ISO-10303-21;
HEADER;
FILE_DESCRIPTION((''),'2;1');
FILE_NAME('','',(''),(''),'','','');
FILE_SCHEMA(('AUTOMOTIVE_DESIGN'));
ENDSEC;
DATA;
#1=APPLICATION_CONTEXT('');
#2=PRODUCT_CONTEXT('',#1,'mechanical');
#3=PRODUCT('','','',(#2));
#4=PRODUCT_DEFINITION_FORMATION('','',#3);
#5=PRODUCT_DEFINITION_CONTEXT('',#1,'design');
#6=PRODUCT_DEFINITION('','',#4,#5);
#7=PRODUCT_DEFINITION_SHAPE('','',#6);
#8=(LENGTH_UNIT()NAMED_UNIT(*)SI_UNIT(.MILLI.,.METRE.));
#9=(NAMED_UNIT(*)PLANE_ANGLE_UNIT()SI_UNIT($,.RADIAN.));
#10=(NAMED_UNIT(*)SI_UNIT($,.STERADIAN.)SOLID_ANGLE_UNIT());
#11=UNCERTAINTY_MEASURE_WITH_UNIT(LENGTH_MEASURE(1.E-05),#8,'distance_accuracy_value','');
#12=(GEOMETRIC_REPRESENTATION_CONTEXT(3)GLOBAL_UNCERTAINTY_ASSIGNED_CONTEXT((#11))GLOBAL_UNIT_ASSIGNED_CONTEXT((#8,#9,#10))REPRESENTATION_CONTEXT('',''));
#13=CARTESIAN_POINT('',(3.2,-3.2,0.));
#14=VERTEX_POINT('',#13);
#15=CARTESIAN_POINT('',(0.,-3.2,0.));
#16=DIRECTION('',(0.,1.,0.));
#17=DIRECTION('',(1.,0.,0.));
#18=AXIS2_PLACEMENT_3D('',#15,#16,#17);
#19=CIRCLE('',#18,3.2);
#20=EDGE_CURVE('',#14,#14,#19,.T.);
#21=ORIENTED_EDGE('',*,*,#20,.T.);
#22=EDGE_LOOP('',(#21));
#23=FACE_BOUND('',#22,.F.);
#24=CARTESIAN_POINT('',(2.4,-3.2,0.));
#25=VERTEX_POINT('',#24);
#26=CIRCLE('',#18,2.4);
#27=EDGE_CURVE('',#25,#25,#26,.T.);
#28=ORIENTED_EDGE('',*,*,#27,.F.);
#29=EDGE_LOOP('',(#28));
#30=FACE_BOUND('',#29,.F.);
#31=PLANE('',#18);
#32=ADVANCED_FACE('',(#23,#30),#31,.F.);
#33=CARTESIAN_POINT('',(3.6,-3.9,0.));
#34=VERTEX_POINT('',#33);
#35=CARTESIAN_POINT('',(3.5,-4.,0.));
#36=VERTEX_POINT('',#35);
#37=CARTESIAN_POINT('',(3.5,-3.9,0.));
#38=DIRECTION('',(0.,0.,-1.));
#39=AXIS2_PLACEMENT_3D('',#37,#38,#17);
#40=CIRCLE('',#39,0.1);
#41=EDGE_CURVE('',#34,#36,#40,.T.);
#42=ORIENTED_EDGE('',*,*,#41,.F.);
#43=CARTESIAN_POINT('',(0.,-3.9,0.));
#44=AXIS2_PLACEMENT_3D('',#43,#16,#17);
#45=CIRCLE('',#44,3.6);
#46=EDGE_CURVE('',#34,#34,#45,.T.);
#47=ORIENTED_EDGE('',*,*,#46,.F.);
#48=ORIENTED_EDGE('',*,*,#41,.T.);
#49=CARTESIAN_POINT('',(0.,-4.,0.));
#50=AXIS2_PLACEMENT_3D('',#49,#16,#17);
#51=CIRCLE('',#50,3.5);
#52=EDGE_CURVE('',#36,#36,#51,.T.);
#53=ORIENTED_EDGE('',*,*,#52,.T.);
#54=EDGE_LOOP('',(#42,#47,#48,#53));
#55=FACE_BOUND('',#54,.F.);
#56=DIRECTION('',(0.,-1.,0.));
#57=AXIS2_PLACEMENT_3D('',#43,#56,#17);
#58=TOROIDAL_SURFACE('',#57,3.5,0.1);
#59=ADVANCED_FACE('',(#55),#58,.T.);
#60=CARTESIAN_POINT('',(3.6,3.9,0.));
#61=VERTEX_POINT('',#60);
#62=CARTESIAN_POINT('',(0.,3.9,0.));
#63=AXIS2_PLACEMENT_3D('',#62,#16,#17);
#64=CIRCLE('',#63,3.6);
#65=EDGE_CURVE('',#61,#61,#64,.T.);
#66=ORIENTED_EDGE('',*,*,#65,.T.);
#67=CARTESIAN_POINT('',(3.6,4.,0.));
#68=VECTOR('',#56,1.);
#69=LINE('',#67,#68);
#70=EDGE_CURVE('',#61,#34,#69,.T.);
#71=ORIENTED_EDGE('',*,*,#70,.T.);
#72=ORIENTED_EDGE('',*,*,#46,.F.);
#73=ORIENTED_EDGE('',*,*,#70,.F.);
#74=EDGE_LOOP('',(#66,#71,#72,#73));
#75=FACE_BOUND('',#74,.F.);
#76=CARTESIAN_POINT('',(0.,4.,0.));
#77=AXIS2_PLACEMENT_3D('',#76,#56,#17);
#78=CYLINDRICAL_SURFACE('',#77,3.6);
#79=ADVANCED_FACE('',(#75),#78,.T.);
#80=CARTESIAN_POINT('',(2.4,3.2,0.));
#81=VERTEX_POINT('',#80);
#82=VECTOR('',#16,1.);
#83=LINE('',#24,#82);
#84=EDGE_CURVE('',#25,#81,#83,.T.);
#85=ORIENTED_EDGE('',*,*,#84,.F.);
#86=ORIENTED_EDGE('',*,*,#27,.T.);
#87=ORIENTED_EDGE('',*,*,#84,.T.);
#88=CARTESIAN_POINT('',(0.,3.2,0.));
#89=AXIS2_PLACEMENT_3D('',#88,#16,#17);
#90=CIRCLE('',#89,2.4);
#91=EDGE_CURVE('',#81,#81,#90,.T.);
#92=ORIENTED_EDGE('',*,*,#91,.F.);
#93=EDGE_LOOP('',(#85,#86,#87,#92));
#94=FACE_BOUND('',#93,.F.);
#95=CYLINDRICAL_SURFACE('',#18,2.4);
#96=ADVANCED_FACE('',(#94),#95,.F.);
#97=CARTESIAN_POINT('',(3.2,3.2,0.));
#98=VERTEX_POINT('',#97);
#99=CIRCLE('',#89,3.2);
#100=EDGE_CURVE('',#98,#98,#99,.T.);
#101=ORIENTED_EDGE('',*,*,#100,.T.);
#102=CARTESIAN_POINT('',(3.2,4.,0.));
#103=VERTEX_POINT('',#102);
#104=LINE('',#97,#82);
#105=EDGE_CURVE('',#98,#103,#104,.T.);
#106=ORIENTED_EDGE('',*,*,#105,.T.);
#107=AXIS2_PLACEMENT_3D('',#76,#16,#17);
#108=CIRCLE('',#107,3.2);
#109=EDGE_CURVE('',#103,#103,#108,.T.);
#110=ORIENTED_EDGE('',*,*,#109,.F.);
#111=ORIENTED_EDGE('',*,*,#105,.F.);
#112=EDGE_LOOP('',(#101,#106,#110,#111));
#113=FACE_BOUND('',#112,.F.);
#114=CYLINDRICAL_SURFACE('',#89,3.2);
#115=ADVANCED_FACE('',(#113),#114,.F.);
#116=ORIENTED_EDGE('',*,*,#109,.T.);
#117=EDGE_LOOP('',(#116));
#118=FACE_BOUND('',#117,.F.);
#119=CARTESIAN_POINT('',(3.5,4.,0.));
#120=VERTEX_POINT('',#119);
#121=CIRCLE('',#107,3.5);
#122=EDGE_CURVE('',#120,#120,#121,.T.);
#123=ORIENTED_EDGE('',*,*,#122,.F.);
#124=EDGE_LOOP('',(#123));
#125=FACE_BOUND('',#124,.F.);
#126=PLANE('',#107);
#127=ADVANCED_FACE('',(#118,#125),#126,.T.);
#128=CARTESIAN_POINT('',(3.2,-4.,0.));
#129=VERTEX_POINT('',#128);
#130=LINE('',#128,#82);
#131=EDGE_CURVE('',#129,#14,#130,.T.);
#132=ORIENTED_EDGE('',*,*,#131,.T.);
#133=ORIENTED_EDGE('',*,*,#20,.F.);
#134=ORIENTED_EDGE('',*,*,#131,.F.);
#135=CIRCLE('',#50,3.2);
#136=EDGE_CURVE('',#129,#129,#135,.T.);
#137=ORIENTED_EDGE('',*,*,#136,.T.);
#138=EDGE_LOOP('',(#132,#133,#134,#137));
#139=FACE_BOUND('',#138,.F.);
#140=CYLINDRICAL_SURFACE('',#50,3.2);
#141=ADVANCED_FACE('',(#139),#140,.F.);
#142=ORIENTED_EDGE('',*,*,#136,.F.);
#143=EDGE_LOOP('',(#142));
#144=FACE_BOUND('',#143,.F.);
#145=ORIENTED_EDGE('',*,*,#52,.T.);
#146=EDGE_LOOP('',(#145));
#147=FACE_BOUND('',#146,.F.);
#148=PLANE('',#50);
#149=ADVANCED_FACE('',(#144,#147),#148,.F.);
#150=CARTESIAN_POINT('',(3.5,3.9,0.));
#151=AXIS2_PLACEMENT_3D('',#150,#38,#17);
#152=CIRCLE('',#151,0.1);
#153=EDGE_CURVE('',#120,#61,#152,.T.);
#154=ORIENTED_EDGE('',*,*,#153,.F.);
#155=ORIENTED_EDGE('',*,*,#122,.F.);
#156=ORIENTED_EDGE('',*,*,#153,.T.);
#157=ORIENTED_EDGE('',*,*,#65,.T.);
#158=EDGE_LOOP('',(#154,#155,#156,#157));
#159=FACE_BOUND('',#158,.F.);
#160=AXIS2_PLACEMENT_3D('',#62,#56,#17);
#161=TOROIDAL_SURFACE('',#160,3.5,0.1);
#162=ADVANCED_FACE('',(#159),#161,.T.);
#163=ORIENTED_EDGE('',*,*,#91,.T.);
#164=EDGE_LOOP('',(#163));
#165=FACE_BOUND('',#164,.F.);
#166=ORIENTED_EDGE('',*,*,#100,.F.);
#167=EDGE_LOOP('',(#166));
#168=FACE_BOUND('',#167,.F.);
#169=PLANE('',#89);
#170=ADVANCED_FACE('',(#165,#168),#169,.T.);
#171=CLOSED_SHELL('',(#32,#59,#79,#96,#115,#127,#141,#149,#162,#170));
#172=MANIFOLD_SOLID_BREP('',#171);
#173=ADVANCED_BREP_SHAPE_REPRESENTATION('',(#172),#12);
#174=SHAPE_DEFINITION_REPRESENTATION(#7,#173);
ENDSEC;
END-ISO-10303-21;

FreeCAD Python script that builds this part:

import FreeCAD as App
import Part
import Sketcher
from FreeCAD import Vector


def edges_at(feature, points):
    """Names of the edges that pass closest to the given points."""
    edges = feature.Shape.Edges
    near = lambda p: min(range(len(edges)), key=lambda i: edges[i].distToShape(Part.Vertex(*p))[0])
    return sorted({f"Edge{near(p) + 1}" for p in points})

doc = App.newDocument("Part")
params = doc.addObject("Spreadsheet::Sheet", "Params")
for row, (alias, value) in enumerate([
    ("sketch1_height", "8 mm"),
    ("sketch1_width", "0.8 mm"),
    ("sketch1_width2", "0.4 mm"),
    ("revolution_angle", "360 deg"),
    ("fillet_radius", "0.1 mm"),
], start=1):
    params.set(f"A{row}", alias)
    params.set(f"B{row}", "=" + value)
    params.setAlias(f"B{row}", alias)

body = doc.addObject("PartDesign::Body", "Body")

sketch1 = doc.addObject("Sketcher::SketchObject", "Sketch")
body.addObject(sketch1)
sketch1.AttachmentSupport = (doc.XY_Plane, [""])
sketch1.MapMode = "FlatFace"
sketch1.addGeometry([
    Part.LineSegment(Vector(2.4, 3.2, 0), Vector(2.4, -3.2, 0)),
    Part.LineSegment(Vector(2.4, -3.2, 0), Vector(3.2, -3.2, 0)),
    Part.LineSegment(Vector(3.2, -3.2, 0), Vector(3.2, -4, 0)),
    Part.LineSegment(Vector(3.2, -4, 0), Vector(3.6, -4, 0)),
    Part.LineSegment(Vector(3.6, -4, 0), Vector(3.6, 4, 0)),
    Part.LineSegment(Vector(3.6, 4, 0), Vector(3.2, 4, 0)),
    Part.LineSegment(Vector(3.2, 4, 0), Vector(3.2, 3.2, 0)),
    Part.LineSegment(Vector(3.2, 3.2, 0), Vector(2.4, 3.2, 0)),
], False)
sketch1.addConstraint([
    Sketcher.Constraint("Coincident", 0, 2, 1, 1),
    Sketcher.Constraint("Coincident", 1, 2, 2, 1),
    Sketcher.Constraint("Coincident", 2, 2, 3, 1),
    Sketcher.Constraint("Coincident", 3, 2, 4, 1),
    Sketcher.Constraint("Coincident", 4, 2, 5, 1),
    Sketcher.Constraint("Coincident", 5, 2, 6, 1),
    Sketcher.Constraint("Coincident", 6, 2, 7, 1),
    Sketcher.Constraint("Coincident", 7, 2, 0, 1),
    Sketcher.Constraint("Vertical", 0),
    Sketcher.Constraint("Horizontal", 1),
    Sketcher.Constraint("Vertical", 2),
    Sketcher.Constraint("Horizontal", 3),
    Sketcher.Constraint("Vertical", 4),
    Sketcher.Constraint("Horizontal", 5),
    Sketcher.Constraint("Vertical", 6),
    Sketcher.Constraint("Horizontal", 7),
    Sketcher.Constraint("Symmetric", 2, 2, 5, 2, -1),
    Sketcher.Constraint("Equal", 7, 2),
    Sketcher.Constraint("Equal", 2, 6),
    Sketcher.Constraint("DistanceY", 4, 1, 4, 2, 8.0),
    Sketcher.Constraint("DistanceX", 1, 1, 1, 2, 0.8),
    Sketcher.Constraint("DistanceX", 3, 1, 3, 2, 0.4),
    Sketcher.Constraint("DistanceX", -1, 1, 0, 2, 2.4),
])
sketch1.setExpression("Constraints[19]", "Params.sketch1_height")
sketch1.setExpression("Constraints[20]", "Params.sketch1_width")
sketch1.setExpression("Constraints[21]", "Params.sketch1_width2")
revolution = doc.addObject("PartDesign::Revolution", "Revolution")
body.addObject(revolution)
revolution.Profile = sketch1
revolution.ReferenceAxis = (sketch1, ["V_Axis"])
revolution.setExpression("Angle", "Params.revolution_angle")
doc.recompute()

fillet = doc.addObject("PartDesign::Fillet", "Fillet")
body.addObject(fillet)
fillet.Base = (revolution, edges_at(revolution, [(-3.6, 4, 0), (-3.6, -4, 0)]))
fillet.setExpression("Radius", "Params.fillet_radius")

doc.recompute()
